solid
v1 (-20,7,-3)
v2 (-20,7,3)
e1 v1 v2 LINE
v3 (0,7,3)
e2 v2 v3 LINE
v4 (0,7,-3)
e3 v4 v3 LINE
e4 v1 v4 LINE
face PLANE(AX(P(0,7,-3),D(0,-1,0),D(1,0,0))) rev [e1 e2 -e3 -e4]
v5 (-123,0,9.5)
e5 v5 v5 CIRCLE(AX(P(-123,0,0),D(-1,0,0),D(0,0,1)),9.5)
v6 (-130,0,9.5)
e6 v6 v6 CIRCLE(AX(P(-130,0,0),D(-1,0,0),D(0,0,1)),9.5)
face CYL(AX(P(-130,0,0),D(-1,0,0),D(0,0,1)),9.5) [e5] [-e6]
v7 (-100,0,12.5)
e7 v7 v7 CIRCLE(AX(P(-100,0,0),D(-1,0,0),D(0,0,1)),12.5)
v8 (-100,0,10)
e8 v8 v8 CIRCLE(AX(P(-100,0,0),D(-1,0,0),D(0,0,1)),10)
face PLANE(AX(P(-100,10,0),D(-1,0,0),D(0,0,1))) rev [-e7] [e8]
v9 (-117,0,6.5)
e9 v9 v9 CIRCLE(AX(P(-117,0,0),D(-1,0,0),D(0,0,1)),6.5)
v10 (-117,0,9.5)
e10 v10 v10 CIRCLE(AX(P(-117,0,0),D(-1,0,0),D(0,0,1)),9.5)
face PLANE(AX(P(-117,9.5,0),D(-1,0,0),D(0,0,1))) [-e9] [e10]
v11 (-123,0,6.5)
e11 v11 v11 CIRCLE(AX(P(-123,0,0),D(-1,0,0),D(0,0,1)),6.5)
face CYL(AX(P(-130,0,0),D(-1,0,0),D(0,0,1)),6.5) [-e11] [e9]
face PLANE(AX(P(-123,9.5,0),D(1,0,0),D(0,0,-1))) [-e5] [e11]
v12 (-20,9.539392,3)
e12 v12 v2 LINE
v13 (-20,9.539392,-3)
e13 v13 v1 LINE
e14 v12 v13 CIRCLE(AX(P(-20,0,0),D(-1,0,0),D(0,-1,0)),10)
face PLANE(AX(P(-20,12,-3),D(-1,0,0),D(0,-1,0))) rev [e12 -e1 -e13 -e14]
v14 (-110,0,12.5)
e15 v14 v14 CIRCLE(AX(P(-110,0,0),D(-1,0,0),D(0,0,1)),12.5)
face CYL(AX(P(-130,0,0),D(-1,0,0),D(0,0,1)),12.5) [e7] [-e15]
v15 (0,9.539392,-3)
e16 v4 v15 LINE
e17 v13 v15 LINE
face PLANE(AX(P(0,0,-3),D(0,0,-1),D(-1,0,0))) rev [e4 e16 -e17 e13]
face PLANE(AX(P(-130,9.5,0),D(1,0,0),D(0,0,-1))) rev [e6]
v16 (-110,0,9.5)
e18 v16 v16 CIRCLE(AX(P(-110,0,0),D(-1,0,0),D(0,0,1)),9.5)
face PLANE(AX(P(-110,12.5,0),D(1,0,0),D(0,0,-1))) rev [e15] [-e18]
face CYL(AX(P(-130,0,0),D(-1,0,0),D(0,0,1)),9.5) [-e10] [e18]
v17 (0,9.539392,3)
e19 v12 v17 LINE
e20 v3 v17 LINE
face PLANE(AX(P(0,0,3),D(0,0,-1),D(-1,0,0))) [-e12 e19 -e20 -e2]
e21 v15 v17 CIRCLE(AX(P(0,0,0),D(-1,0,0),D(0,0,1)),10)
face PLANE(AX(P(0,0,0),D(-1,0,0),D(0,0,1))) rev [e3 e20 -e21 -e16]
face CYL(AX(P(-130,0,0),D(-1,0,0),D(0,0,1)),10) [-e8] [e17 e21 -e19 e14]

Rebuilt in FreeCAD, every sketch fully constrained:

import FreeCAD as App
import Part
import Sketcher
Q = App.Units.Quantity


def add_polygon(sketch, points):
    """Adds a closed chain of lines whose ends are joined by coincident constraints."""
    first, n = sketch.GeometryCount, len(points)
    for a, b in zip(points, points[1:] + points[:1]):
        sketch.addGeometry(Part.LineSegment(App.Vector(*a, 0), App.Vector(*b, 0)), False)
    for i in range(n):
        sketch.addConstraint(Sketcher.Constraint("Coincident", first + i, 2, first + (i + 1) % n, 1))

doc = App.newDocument("Part")
body = doc.addObject("PartDesign::Body", "Body")

# Sketch on XY plane
sketch1 = body.newObject("Sketcher::SketchObject", "Sketch")
sketch1.AttachmentSupport = (doc.getObject("XY_Plane"), [""])
sketch1.MapMode = "FlatFace"
add_polygon(sketch1, [(0, 0), (0, 10), (-100, 10), (-100, 12.5), (-110, 12.5), (-110, 9.5), (-130, 9.5), (-130, 0)])  # lines 0-7
sketch1.addConstraint([
    Sketcher.Constraint("Vertical", 0),
    Sketcher.Constraint("Horizontal", 1),
    Sketcher.Constraint("Vertical", 2),
    Sketcher.Constraint("Horizontal", 3),
    Sketcher.Constraint("Vertical", 4),
    Sketcher.Constraint("Horizontal", 5),
    Sketcher.Constraint("Vertical", 6),
    Sketcher.Constraint("Horizontal", 7),
    Sketcher.Constraint("Coincident", 7, 2, -1, 1),
    Sketcher.Constraint("Equal", 3, 0),
    Sketcher.Constraint("DistanceX", 1, 2, 1, 1, Q("100 mm")),
    Sketcher.Constraint("DistanceX", 3, 2, 3, 1, Q("10 mm")),
    Sketcher.Constraint("DistanceX", 5, 2, 5, 1, Q("20 mm")),
    Sketcher.Constraint("DistanceY", 4, 2, 4, 1, Q("3 mm")),
    Sketcher.Constraint("DistanceY", 2, 1, 2, 2, Q("2.5 mm")),
])
revolution = body.newObject("PartDesign::Revolution", "Revolution")
revolution.Profile = sketch1
revolution.ReferenceAxis = (sketch1, ["H_Axis"])
revolution.Angle = 360

# Sketch on XY plane
sketch2 = body.newObject("Sketcher::SketchObject", "Sketch001")
sketch2.AttachmentSupport = (doc.getObject("XY_Plane"), [""])
sketch2.MapMode = "FlatFace"
add_polygon(sketch2, [(-123, 9.5), (-123, 6.5), (-117, 6.5), (-117, 9.5)])  # lines 0-3
sketch2.addConstraint([
    Sketcher.Constraint("Vertical", 0),
    Sketcher.Constraint("Horizontal", 1),
    Sketcher.Constraint("Vertical", 2),
    Sketcher.Constraint("Horizontal", 3),
    Sketcher.Constraint("DistanceX", 1, 1, 1, 2, Q("6 mm")),
    Sketcher.Constraint("DistanceY", 0, 2, 0, 1, Q("3 mm")),
    Sketcher.Constraint("DistanceX", 0, 2, -1, 1, Q("123 mm")),
    Sketcher.Constraint("DistanceY", -1, 1, 0, 2, Q("6.5 mm")),
])
groove = body.newObject("PartDesign::Groove", "Groove")
groove.Profile = sketch2
groove.ReferenceAxis = (sketch2, ["H_Axis"])
groove.Angle = 360

# Sketch on XY plane
sketch3 = body.newObject("Sketcher::SketchObject", "Sketch002")
sketch3.AttachmentSupport = (doc.getObject("XY_Plane"), [""])
sketch3.MapMode = "FlatFace"
add_polygon(sketch3, [(-20, 12), (-20, 7), (0, 7), (0, 12)])  # lines 0-3
sketch3.addConstraint([
    Sketcher.Constraint("Vertical", 0),
    Sketcher.Constraint("Horizontal", 1),
    Sketcher.Constraint("Vertical", 2),
    Sketcher.Constraint("Horizontal", 3),
    Sketcher.Constraint("PointOnObject", 1, 2, -2),
    Sketcher.Constraint("DistanceX", 1, 1, 1, 2, Q("20 mm")),
    Sketcher.Constraint("DistanceY", 0, 2, 0, 1, Q("5 mm")),
    Sketcher.Constraint("DistanceY", -1, 1, 0, 2, Q("7 mm")),
])
pocket1 = body.newObject("PartDesign::Pocket", "Pocket")
pocket1.Profile = sketch3
pocket1.Length = 6
pocket1.Midplane = True

doc.recompute()
